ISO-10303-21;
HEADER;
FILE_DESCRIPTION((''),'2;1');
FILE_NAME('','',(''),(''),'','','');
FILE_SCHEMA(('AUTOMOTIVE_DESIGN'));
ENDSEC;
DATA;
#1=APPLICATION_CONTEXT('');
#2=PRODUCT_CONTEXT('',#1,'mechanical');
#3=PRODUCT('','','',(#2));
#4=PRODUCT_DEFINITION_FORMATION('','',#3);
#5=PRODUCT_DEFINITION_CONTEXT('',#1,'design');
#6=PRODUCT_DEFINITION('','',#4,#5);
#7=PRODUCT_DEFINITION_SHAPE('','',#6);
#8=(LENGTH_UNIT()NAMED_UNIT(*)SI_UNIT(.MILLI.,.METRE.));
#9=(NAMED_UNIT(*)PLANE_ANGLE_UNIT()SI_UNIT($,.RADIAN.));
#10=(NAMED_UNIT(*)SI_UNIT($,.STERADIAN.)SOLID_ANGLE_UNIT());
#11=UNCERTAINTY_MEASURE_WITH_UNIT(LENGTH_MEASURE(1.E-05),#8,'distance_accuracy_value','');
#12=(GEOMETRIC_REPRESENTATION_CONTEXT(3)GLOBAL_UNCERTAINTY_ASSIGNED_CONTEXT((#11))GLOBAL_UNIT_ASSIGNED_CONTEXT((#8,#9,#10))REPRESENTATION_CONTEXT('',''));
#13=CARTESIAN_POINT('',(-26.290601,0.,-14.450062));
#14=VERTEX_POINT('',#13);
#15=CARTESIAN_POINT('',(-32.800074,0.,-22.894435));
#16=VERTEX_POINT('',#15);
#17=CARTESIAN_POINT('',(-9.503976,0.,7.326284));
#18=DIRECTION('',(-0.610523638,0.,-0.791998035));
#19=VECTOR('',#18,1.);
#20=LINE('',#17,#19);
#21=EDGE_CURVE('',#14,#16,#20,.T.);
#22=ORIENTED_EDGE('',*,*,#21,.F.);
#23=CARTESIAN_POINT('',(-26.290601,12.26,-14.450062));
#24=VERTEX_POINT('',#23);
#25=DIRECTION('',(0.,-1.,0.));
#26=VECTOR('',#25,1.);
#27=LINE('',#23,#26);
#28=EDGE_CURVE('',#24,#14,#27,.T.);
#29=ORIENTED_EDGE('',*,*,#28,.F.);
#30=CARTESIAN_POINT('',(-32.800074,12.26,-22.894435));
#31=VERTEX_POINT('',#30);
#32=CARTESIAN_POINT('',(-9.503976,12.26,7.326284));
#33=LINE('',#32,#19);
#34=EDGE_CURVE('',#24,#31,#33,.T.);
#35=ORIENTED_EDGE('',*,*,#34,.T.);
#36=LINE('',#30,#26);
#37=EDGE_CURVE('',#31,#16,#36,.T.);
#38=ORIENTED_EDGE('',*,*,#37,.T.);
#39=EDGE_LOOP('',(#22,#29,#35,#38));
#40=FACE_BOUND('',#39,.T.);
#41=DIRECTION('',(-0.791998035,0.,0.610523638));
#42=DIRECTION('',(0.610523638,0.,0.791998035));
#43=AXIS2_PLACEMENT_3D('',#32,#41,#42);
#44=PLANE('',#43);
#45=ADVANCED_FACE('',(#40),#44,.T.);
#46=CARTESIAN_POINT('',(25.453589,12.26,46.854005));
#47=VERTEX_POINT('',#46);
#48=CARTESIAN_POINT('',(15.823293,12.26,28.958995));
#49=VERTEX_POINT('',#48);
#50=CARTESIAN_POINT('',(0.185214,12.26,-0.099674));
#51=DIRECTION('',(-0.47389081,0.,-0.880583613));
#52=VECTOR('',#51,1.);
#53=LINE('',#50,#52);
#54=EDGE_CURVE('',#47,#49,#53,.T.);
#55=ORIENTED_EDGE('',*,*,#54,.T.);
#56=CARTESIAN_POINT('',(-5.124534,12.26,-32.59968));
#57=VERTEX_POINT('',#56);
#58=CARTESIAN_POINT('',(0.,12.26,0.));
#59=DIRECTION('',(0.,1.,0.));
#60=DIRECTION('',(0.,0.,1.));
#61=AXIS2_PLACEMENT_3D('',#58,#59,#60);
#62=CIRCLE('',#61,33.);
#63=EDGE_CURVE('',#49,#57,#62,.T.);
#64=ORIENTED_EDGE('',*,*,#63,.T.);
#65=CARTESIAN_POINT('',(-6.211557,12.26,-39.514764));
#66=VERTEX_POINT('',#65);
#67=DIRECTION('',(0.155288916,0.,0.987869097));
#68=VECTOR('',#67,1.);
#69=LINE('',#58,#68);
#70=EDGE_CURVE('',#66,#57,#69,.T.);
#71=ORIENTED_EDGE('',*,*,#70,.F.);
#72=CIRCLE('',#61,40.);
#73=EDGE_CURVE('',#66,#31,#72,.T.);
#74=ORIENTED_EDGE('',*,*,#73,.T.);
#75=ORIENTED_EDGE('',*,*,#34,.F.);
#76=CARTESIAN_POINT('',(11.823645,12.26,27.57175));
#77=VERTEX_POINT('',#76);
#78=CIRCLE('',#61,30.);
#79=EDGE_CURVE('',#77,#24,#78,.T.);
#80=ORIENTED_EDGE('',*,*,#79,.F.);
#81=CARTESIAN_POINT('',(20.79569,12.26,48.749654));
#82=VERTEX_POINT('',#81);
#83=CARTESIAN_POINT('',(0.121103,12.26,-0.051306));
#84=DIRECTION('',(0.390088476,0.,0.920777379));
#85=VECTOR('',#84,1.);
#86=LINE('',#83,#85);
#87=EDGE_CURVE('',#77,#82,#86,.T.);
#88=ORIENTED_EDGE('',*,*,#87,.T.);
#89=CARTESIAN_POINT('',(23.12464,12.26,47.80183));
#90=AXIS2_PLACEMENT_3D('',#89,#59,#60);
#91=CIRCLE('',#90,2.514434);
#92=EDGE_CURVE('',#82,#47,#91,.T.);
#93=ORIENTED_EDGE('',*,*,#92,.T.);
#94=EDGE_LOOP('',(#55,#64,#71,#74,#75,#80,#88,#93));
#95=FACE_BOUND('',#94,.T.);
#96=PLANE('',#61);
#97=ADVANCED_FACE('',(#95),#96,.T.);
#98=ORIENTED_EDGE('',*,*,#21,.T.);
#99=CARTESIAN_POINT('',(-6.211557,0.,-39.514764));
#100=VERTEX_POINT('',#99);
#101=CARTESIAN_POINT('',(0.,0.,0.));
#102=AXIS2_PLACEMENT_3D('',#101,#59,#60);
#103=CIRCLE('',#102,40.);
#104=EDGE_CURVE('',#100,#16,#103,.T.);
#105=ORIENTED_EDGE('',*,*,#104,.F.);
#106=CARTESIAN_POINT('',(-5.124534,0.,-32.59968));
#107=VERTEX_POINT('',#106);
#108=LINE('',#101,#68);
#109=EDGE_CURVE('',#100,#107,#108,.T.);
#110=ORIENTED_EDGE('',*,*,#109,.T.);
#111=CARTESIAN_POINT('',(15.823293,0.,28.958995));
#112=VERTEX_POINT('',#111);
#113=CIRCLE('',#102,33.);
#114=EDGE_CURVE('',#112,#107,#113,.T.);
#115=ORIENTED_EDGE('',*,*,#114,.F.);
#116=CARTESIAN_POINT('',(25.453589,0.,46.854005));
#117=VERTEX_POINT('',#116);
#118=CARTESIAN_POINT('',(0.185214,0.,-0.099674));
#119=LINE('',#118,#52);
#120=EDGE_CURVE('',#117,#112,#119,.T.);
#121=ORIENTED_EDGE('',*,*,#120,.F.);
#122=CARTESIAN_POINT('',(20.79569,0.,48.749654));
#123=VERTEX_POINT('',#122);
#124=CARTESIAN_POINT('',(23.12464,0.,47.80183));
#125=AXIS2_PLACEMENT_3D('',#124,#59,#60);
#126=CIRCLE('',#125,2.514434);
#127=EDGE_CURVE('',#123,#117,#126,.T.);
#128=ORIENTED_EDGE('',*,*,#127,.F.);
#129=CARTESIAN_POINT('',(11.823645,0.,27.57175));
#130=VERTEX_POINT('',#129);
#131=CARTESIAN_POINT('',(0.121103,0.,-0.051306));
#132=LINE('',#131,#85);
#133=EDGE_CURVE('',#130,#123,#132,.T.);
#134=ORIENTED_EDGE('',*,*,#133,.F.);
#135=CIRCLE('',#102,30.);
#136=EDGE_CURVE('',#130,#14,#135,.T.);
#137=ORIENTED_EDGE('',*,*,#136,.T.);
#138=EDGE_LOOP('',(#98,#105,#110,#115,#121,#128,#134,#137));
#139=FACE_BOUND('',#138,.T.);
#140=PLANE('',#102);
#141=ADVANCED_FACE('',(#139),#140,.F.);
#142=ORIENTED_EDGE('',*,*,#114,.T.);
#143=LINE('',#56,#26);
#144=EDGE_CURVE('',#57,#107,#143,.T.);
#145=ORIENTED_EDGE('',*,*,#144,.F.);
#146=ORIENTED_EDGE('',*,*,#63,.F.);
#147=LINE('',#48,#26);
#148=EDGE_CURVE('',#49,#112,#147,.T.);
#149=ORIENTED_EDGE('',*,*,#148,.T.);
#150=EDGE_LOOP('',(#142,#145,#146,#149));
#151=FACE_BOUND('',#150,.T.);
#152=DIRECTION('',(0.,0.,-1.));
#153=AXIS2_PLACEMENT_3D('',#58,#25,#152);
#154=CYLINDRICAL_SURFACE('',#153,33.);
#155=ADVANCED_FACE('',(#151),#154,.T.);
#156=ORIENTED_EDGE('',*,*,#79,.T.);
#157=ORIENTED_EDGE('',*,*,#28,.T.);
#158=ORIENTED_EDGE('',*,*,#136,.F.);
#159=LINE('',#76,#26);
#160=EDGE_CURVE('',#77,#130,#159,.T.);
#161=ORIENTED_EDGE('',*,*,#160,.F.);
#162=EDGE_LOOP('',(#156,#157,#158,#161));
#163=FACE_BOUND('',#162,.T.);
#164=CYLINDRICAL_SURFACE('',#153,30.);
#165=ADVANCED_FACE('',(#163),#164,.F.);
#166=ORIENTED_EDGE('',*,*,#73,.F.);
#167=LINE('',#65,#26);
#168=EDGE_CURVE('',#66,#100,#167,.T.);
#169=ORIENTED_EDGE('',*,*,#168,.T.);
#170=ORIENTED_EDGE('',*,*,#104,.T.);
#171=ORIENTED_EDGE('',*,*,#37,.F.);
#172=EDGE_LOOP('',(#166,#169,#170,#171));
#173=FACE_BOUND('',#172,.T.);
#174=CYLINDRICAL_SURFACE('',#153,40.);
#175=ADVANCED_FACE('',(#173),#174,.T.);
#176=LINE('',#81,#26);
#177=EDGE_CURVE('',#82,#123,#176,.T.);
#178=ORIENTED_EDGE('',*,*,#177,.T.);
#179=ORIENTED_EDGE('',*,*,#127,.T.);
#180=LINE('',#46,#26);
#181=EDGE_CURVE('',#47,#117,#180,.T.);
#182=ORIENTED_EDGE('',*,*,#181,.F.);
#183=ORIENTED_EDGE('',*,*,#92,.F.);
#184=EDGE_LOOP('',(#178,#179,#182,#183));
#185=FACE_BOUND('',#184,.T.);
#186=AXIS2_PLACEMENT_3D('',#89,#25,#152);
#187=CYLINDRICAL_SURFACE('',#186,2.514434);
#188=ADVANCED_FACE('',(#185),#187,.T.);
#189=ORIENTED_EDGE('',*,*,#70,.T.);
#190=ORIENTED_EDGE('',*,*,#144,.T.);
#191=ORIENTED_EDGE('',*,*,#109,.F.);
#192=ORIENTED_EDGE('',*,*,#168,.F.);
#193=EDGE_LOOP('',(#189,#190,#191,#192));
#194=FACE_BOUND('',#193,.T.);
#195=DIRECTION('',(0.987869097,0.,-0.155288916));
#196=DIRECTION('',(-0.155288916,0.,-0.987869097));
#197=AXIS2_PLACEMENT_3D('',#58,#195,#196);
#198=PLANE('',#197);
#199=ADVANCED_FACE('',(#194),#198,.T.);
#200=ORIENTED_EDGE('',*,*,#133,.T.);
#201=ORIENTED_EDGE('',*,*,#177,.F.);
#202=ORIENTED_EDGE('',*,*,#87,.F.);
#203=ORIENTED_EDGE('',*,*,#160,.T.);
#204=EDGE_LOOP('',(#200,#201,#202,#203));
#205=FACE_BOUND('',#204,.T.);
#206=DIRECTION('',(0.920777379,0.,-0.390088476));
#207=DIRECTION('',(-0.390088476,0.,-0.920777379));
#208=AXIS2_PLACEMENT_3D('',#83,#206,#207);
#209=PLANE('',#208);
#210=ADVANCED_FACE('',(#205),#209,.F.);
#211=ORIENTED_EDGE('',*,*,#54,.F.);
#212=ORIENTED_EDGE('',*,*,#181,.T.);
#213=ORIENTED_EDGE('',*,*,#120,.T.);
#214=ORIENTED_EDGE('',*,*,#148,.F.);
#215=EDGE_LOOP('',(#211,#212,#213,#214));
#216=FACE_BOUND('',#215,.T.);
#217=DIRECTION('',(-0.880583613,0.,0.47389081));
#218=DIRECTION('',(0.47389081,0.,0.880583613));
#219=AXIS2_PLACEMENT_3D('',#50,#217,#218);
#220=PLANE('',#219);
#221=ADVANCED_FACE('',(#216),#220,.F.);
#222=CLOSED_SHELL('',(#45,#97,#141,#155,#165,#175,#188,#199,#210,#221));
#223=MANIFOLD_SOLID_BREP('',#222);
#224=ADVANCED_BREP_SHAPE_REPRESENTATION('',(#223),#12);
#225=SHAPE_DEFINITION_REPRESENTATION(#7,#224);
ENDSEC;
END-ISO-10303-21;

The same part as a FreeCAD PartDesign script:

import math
import FreeCAD as App
import Part
import Sketcher

V = App.Vector
Q = App.Units.Quantity

doc = App.newDocument("Part")
params = doc.addObject("Spreadsheet::Sheet", "Params")
for row, (alias, value) in enumerate([
    ("sketch1_radius", "33 mm"),
    ("sketch1_radius2", "40 mm"),
    ("sketch1_radius3", "30 mm"),
    ("sketch1_length", "20 mm"),
    ("pad1_length", "12.26 mm"),
], start=1):
    params.set(f"A{row}", alias)
    params.set(f"B{row}", "=" + value)
    params.setAlias(f"B{row}", alias)

body = doc.addObject("PartDesign::Body", "Body")

sketch1 = body.newObject("Sketcher::SketchObject", "Sketch")
sketch1.AttachmentSupport = (doc.getObject("XZ_Plane"), [""])
sketch1.MapMode = "FlatFace"
sketch1.addGeometry([
    Part.LineSegment(V(11.8, 27.6, 0), V(13, 30.3, 0)),
    Part.LineSegment(V(13, 30.3, 0), V(20.8, 48.7, 0)),
    Part.ArcOfCircle(Part.Circle(V(23.1, 47.8, 0), V(0, 0, 1), 2.5), math.radians(-22), math.radians(158)),
    Part.LineSegment(V(25.5, 46.9, 0), V(25.2, 46.4, 0)),
    Part.LineSegment(V(25.2, 46.4, 0), V(15.8, 29, 0)),
    Part.ArcOfCircle(Part.Circle(V(0, 0, 0), V(0, 0, 1), 33), math.radians(38), math.radians(61)),
    Part.ArcOfCircle(Part.Circle(V(0, 0, 0), V(0, 0, 1), 33), math.radians(32.4), math.radians(37.81)),
    Part.ArcOfCircle(Part.Circle(V(0, 0, 0), V(0, 0, 1), 33), math.radians(-67), math.radians(32)),
    Part.ArcOfCircle(Part.Circle(V(0, 0, 0), V(0, 0, 1), 33), math.radians(-99), math.radians(-67)),
    Part.LineSegment(V(-5.1, -32.6, 0), V(-6.2, -39.5, 0)),
    Part.ArcOfCircle(Part.Circle(V(0, 0, 0), V(0, 0, 1), 40), math.radians(-145), math.radians(-99)),
    Part.LineSegment(V(-32.8, -22.9, 0), V(-28.3, -17, 0)),
    Part.LineSegment(V(-28.3, -17, 0), V(-26.3, -14.5, 0)),
    Part.ArcOfCircle(Part.Circle(V(0, 0, 0), V(0, 0, 1), 30), math.radians(-151), math.radians(67)),
], False)
sketch1.addConstraint([
    Sketcher.Constraint("Coincident", 0, 2, 1, 1),
    Sketcher.Constraint("Coincident", 1, 2, 2, 2),
    Sketcher.Constraint("Coincident", 2, 1, 3, 1),
    Sketcher.Constraint("Coincident", 3, 2, 4, 1),
    Sketcher.Constraint("Coincident", 4, 2, 5, 2),
    Sketcher.Constraint("Tangent", 5, 1, 6, 2),
    Sketcher.Constraint("Tangent", 6, 1, 7, 2),
    Sketcher.Constraint("Tangent", 7, 1, 8, 2),
    Sketcher.Constraint("Coincident", 8, 1, 9, 1),
    Sketcher.Constraint("Coincident", 9, 2, 10, 2),
    Sketcher.Constraint("Coincident", 10, 1, 11, 1),
    Sketcher.Constraint("Coincident", 11, 2, 12, 1),
    Sketcher.Constraint("Coincident", 12, 2, 13, 1),
    Sketcher.Constraint("Coincident", 13, 2, 0, 1),
    Sketcher.Constraint("Coincident", 5, 3, -1, 1),
    Sketcher.Constraint("Coincident", 7, 3, -1, 1),
    Sketcher.Constraint("Coincident", 10, 3, -1, 1),
    Sketcher.Constraint("Coincident", 13, 3, -1, 1),
    Sketcher.Constraint("Equal", 7, 8),
    Sketcher.Constraint("Parallel", 0, 1),
    Sketcher.Constraint("Parallel", 3, 4),
    Sketcher.Constraint("Parallel", 11, 12),
    Sketcher.Constraint("Radius", 5, 33.0),
    Sketcher.Constraint("Radius", 10, 40.0),
    Sketcher.Constraint("Radius", 13, 30.0),
    Sketcher.Constraint("Distance", 1, 20.0),
    Sketcher.Constraint("Angle", 0, Q("67.039995 deg")),
    Sketcher.Constraint("Radius", 2, 2.514434),
    Sketcher.Constraint("DistanceY", -1, 1, 3, 2, 46.3802),
    Sketcher.Constraint("DistanceX", 12, 2, -1, 1, 26.290601),
    Sketcher.Constraint("DistanceX", 1, 2, 2, 1, 4.657899),
    Sketcher.Constraint("DistanceY", 5, 1, 2, 3, 27.5706),
    Sketcher.Constraint("DistanceY", 10, 1, 11, 2, 5.8786),
    Sketcher.Constraint("Distance", 3, 0.538058),
    Sketcher.Constraint("Distance", 12, 3.239621),
    Sketcher.Constraint("DistanceX", -1, 1, 2, 3, 23.12464),
    Sketcher.Constraint("DistanceY", -1, 1, 2, 3, 47.80183),
    Sketcher.Constraint("DistanceX", -1, 1, 0, 2, 12.993921),
    Sketcher.Constraint("DistanceY", -1, 1, 6, 1, 17.682141),
    Sketcher.Constraint("DistanceY", 8, 1, -1, 1, 32.59968),
    Sketcher.Constraint("DistanceX", 9, 2, 7, 1, 18.865839),
    Sketcher.Constraint("DistanceY", 9, 2, 7, 1, 9.037409),
])
sketch1.setExpression("Constraints[22]", "Params.sketch1_radius")
sketch1.setExpression("Constraints[23]", "Params.sketch1_radius2")
sketch1.setExpression("Constraints[24]", "Params.sketch1_radius3")
sketch1.setExpression("Constraints[25]", "Params.sketch1_length")
pad1 = body.newObject("PartDesign::Pad", "Pad")
pad1.Profile = sketch1
pad1.setExpression("Length", "Params.pad1_length")
pad1.Reversed = True

doc.recompute()
